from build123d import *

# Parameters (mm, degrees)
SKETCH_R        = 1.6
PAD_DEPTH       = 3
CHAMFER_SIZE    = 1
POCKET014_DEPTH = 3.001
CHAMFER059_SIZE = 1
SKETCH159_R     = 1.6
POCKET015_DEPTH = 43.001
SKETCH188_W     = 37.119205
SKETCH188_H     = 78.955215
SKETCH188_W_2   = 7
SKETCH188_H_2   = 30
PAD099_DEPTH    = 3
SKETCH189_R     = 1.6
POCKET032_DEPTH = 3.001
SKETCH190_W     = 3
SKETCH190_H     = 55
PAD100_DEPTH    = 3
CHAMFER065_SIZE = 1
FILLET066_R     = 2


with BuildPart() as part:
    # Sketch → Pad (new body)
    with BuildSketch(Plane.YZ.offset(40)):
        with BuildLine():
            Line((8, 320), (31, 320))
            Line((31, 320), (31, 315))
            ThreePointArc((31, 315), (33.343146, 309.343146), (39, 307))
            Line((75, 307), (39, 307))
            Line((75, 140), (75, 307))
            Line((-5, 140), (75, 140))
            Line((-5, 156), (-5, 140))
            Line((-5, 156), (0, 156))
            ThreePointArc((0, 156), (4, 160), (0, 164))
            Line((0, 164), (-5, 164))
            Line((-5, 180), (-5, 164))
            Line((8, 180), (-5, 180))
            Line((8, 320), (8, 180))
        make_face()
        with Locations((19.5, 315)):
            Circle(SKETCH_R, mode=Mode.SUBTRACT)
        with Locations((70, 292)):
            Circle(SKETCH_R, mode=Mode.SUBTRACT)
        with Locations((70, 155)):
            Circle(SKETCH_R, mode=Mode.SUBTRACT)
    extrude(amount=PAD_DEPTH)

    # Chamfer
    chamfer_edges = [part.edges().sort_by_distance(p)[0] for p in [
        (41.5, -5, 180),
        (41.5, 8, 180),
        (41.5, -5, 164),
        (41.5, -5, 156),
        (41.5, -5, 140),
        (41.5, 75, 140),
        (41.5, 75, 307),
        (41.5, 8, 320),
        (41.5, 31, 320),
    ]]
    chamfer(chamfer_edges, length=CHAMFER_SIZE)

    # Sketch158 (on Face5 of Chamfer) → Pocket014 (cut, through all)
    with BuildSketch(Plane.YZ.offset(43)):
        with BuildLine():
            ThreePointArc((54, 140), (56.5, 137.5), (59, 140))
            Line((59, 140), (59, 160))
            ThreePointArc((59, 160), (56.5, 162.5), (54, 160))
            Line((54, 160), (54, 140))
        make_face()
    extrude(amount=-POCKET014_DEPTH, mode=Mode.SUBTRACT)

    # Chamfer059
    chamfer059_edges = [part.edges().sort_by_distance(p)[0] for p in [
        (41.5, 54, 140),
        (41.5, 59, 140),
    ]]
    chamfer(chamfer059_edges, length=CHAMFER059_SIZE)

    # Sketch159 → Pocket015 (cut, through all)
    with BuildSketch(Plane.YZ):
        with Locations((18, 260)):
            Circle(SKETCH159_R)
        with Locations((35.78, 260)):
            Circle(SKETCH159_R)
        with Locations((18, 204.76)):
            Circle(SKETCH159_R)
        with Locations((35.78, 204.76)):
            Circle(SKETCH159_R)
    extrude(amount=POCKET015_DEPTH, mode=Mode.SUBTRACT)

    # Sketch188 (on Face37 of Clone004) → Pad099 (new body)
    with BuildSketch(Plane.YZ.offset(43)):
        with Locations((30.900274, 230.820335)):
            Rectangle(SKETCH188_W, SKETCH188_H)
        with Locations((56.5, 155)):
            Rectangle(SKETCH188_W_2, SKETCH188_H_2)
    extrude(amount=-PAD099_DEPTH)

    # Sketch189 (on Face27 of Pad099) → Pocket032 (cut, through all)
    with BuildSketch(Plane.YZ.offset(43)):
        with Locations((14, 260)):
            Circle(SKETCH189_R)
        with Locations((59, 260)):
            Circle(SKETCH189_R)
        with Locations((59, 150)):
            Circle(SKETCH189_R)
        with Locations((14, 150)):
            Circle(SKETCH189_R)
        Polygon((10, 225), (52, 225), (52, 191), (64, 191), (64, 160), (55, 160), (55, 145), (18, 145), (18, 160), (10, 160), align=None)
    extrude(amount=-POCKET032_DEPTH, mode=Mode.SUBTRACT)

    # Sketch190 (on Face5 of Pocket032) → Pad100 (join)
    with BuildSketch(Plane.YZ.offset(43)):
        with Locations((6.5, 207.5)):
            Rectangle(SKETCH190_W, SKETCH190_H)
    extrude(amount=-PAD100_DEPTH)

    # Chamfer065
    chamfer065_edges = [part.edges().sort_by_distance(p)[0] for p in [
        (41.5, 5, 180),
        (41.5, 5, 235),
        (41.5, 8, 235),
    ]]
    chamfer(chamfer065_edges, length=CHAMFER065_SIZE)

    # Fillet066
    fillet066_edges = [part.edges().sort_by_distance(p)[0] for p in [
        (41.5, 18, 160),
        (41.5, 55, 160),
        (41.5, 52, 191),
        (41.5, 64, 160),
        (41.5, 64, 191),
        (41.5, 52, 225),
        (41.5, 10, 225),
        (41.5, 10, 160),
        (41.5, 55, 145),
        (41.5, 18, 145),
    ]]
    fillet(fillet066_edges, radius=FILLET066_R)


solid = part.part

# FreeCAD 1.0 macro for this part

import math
import FreeCAD as App
import Part
import Sketcher

V = App.Vector
Q = App.Units.Quantity


def edges_at(feature, points):
    """Names of the edges that pass closest to the given points."""
    edges = feature.Shape.Edges
    near = lambda p: min(range(len(edges)), key=lambda i: edges[i].distToShape(Part.Vertex(*p))[0])
    return sorted({f"Edge{near(p) + 1}" for p in points})

doc = App.newDocument("Part")
body = doc.addObject("PartDesign::Body", "Body")

# Sketch on YZ plane
sketch1 = body.newObject("Sketcher::SketchObject", "Sketch")
sketch1.AttachmentSupport = (doc.getObject("YZ_Plane"), [""])
sketch1.MapMode = "FlatFace"
sketch1.AttachmentOffset = App.Placement(V(0, 0, 40), App.Rotation())
sketch1.addGeometry(Part.LineSegment(V(31, 320, 0), V(8, 320, 0)), False)
sketch1.addGeometry(Part.LineSegment(V(8, 320, 0), V(8, 180, 0)), False)
sketch1.addGeometry(Part.LineSegment(V(8, 180, 0), V(-5, 180, 0)), False)
sketch1.addGeometry(Part.LineSegment(V(-5, 180, 0), V(-5, 164, 0)), False)
sketch1.addGeometry(Part.LineSegment(V(-5, 164, 0), V(0, 164, 0)), False)
sketch1.addGeometry(Part.ArcOfCircle(Part.Circle(V(0, 160, 0), V(0, 0, 1), 4), math.radians(-90), math.radians(90)), False)
sketch1.addGeometry(Part.LineSegment(V(0, 156, 0), V(-5, 156, 0)), False)
sketch1.addGeometry(Part.LineSegment(V(-5, 156, 0), V(-5, 140, 0)), False)
sketch1.addGeometry(Part.LineSegment(V(-5, 140, 0), V(75, 140, 0)), False)
sketch1.addGeometry(Part.LineSegment(V(75, 140, 0), V(75, 307, 0)), False)
sketch1.addGeometry(Part.LineSegment(V(75, 307, 0), V(39, 307, 0)), False)
sketch1.addGeometry(Part.ArcOfCircle(Part.Circle(V(39.000001, 315.000001, 0), V(0, 0, 1), 8.000001), math.radians(-179.999994), math.radians(-90.000006)), False)
sketch1.addGeometry(Part.LineSegment(V(31, 315, 0), V(31, 320, 0)), False)
sketch1.addGeometry(Part.Circle(V(70, 155, 0), V(0, 0, 1), 1.6), False)
sketch1.addGeometry(Part.Circle(V(70, 292, 0), V(0, 0, 1), 1.6), False)
sketch1.addGeometry(Part.Circle(V(19.5, 315, 0), V(0, 0, 1), 1.6), False)
sketch1.addConstraint(Sketcher.Constraint("Coincident", 0, 2, 1, 1))
sketch1.addConstraint(Sketcher.Constraint("Coincident", 1, 2, 2, 1))
sketch1.addConstraint(Sketcher.Constraint("Coincident", 2, 2, 3, 1))
sketch1.addConstraint(Sketcher.Constraint("Coincident", 3, 2, 4, 1))
sketch1.addConstraint(Sketcher.Constraint("Tangent", 4, 2, 5, 2))
sketch1.addConstraint(Sketcher.Constraint("Tangent", 5, 1, 6, 1))
sketch1.addConstraint(Sketcher.Constraint("Coincident", 6, 2, 7, 1))
sketch1.addConstraint(Sketcher.Constraint("Coincident", 7, 2, 8, 1))
sketch1.addConstraint(Sketcher.Constraint("Coincident", 8, 2, 9, 1))
sketch1.addConstraint(Sketcher.Constraint("Coincident", 9, 2, 10, 1))
sketch1.addConstraint(Sketcher.Constraint("Tangent", 10, 2, 11, 2))
sketch1.addConstraint(Sketcher.Constraint("Tangent", 11, 1, 12, 1))
sketch1.addConstraint(Sketcher.Constraint("Coincident", 12, 2, 0, 1))
sketch1.addConstraint(Sketcher.Constraint("Horizontal", 0))
sketch1.addConstraint(Sketcher.Constraint("Vertical", 1))
sketch1.addConstraint(Sketcher.Constraint("Horizontal", 2))
sketch1.addConstraint(Sketcher.Constraint("Vertical", 3))
sketch1.addConstraint(Sketcher.Constraint("Horizontal", 4))
sketch1.addConstraint(Sketcher.Constraint("Horizontal", 6))
sketch1.addConstraint(Sketcher.Constraint("Vertical", 7))
sketch1.addConstraint(Sketcher.Constraint("Horizontal", 8))
sketch1.addConstraint(Sketcher.Constraint("Vertical", 9))
sketch1.addConstraint(Sketcher.Constraint("Horizontal", 10))
sketch1.addConstraint(Sketcher.Constraint("Vertical", 12))
sketch1.addConstraint(Sketcher.Constraint("Equal", 13, 14))
sketch1.addConstraint(Sketcher.Constraint("Equal", 14, 15))
sketch1.addConstraint(Sketcher.Constraint("PointOnObject", 5, 3, -2))
sketch1.addConstraint(Sketcher.Constraint("Horizontal", 11, 3, 15, 3))
sketch1.addConstraint(Sketcher.Constraint("Vertical", 13, 3, 14, 3))
sketch1.addConstraint(Sketcher.Constraint("Vertical", 3, 2, 6, 2))
sketch1.addConstraint(Sketcher.Constraint("Equal", 3, 7))
sketch1.addConstraint(Sketcher.Constraint("Equal", 6, 12))
sketch1.addConstraint(Sketcher.Constraint("Radius", 5, Q("4 mm")))
sketch1.addConstraint(Sketcher.Constraint("Radius", 11, Q("8.000001 mm")))
sketch1.addConstraint(Sketcher.Constraint("Diameter", 13, Q("3.2 mm")))
sketch1.addConstraint(Sketcher.Constraint("DistanceX", 0, 2, 0, 1, Q("23 mm")))
sketch1.addConstraint(Sketcher.Constraint("DistanceX", 2, 2, 2, 1, Q("13 mm")))
sketch1.addConstraint(Sketcher.Constraint("DistanceX", 4, 1, 4, 2, Q("5 mm")))
sketch1.addConstraint(Sketcher.Constraint("DistanceX", 8, 1, 8, 2, Q("80 mm")))
sketch1.addConstraint(Sketcher.Constraint("DistanceY", 1, 2, 1, 1, Q("140 mm")))
sketch1.addConstraint(Sketcher.Constraint("DistanceY", 3, 2, 3, 1, Q("16 mm")))
sketch1.addConstraint(Sketcher.Constraint("DistanceY", -1, 1, 5, 3, Q("160 mm")))
sketch1.addConstraint(Sketcher.Constraint("DistanceX", -1, 1, 13, 3, Q("70 mm")))
sketch1.addConstraint(Sketcher.Constraint("DistanceY", -1, 1, 13, 3, Q("155 mm")))
sketch1.addConstraint(Sketcher.Constraint("DistanceY", -1, 1, 14, 3, Q("292 mm")))
sketch1.addConstraint(Sketcher.Constraint("DistanceX", -1, 1, 15, 3, Q("19.5 mm")))
pad1 = body.newObject("PartDesign::Pad", "Pad")
pad1.Profile = sketch1
pad1.Length = 3
doc.recompute()

chamfer = body.newObject("PartDesign::Chamfer", "Chamfer")
chamfer.Base = (pad1, edges_at(pad1, [
    (41.5, -5, 180),
    (41.5, 8, 180),
    (41.5, -5, 164),
    (41.5, -5, 156),
    (41.5, -5, 140),
    (41.5, 75, 140),
    (41.5, 75, 307),
    (41.5, 8, 320),
    (41.5, 31, 320),
]))
chamfer.Size = 1

# Sketch on YZ plane
sketch2 = body.newObject("Sketcher::SketchObject", "Sketch001")
sketch2.AttachmentSupport = (doc.getObject("YZ_Plane"), [""])
sketch2.MapMode = "FlatFace"
sketch2.AttachmentOffset = App.Placement(V(0, 0, 43), App.Rotation())
sketch2.addGeometry(Part.ArcOfCircle(Part.Circle(V(56.5, 140, 0), V(0, 0, 1), 2.5), math.radians(180), math.radians(360)), False)
sketch2.addGeometry(Part.LineSegment(V(59, 140, 0), V(59, 160, 0)), False)
sketch2.addGeometry(Part.ArcOfCircle(Part.Circle(V(56.5, 160, 0), V(0, 0, 1), 2.5), math.radians(0), math.radians(180)), False)
sketch2.addGeometry(Part.LineSegment(V(54, 160, 0), V(54, 140, 0)), False)
sketch2.addConstraint(Sketcher.Constraint("Tangent", 0, 2, 1, 1))
sketch2.addConstraint(Sketcher.Constraint("Tangent", 1, 2, 2, 1))
sketch2.addConstraint(Sketcher.Constraint("Tangent", 2, 2, 3, 1))
sketch2.addConstraint(Sketcher.Constraint("Tangent", 3, 2, 0, 1))
sketch2.addConstraint(Sketcher.Constraint("Vertical", 1))
sketch2.addConstraint(Sketcher.Constraint("Vertical", 3))
sketch2.addConstraint(Sketcher.Constraint("Radius", 0, Q("2.5 mm")))
sketch2.addConstraint(Sketcher.Constraint("DistanceY", 1, 1, 1, 2, Q("20 mm")))
sketch2.addConstraint(Sketcher.Constraint("DistanceY", -1, 1, 0, 3, Q("140 mm")))
sketch2.addConstraint(Sketcher.Constraint("DistanceX", -1, 1, 0, 2, Q("59 mm")))
pocket1 = body.newObject("PartDesign::Pocket", "Pocket")
pocket1.Profile = sketch2
pocket1.Type = "ThroughAll"
doc.recompute()

chamfer2 = body.newObject("PartDesign::Chamfer", "Chamfer001")
chamfer2.Base = (pocket1, edges_at(pocket1, [(41.5, 54, 140), (41.5, 59, 140)]))
chamfer2.Size = 1

# Sketch on YZ plane
sketch3 = body.newObject("Sketcher::SketchObject", "Sketch002")
sketch3.AttachmentSupport = (doc.getObject("YZ_Plane"), [""])
sketch3.MapMode = "FlatFace"
sketch3.addGeometry(Part.Circle(V(18, 260, 0), V(0, 0, 1), 1.6), False)
sketch3.addGeometry(Part.Circle(V(35.78, 260, 0), V(0, 0, 1), 1.6), False)
sketch3.addGeometry(Part.Circle(V(18, 204.76, 0), V(0, 0, 1), 1.6), False)
sketch3.addGeometry(Part.Circle(V(35.78, 204.76, 0), V(0, 0, 1), 1.6), False)
sketch3.addConstraint(Sketcher.Constraint("Equal", 0, 1))
sketch3.addConstraint(Sketcher.Constraint("Equal", 1, 2))
sketch3.addConstraint(Sketcher.Constraint("Equal", 2, 3))
sketch3.addConstraint(Sketcher.Constraint("Horizontal", 0, 3, 1, 3))
sketch3.addConstraint(Sketcher.Constraint("Horizontal", 2, 3, 3, 3))
sketch3.addConstraint(Sketcher.Constraint("Vertical", 0, 3, 2, 3))
sketch3.addConstraint(Sketcher.Constraint("Vertical", 1, 3, 3, 3))
sketch3.addConstraint(Sketcher.Constraint("Diameter", 0, Q("3.2 mm")))
sketch3.addConstraint(Sketcher.Constraint("DistanceX", -1, 1, 0, 3, Q("18 mm")))
sketch3.addConstraint(Sketcher.Constraint("DistanceY", -1, 1, 0, 3, Q("260 mm")))
sketch3.addConstraint(Sketcher.Constraint("DistanceX", -1, 1, 1, 3, Q("35.78 mm")))
sketch3.addConstraint(Sketcher.Constraint("DistanceY", -1, 1, 2, 3, Q("204.76 mm")))
pocket2 = body.newObject("PartDesign::Pocket", "Pocket001")
pocket2.Profile = sketch3
pocket2.Type = "ThroughAll"
pocket2.Reversed = True

# Sketch on YZ plane
sketch4 = body.newObject("Sketcher::SketchObject", "Sketch003")
sketch4.AttachmentSupport = (doc.getObject("YZ_Plane"), [""])
sketch4.MapMode = "FlatFace"
sketch4.AttachmentOffset = App.Placement(V(0, 0, 43), App.Rotation())
sketch4.addGeometry(Part.LineSegment(V(12.340671, 270.297942, 0), V(12.340671, 191.342727, 0)), False)
sketch4.addGeometry(Part.LineSegment(V(12.340671, 191.342727, 0), V(49.459877, 191.342727, 0)), False)
sketch4.addGeometry(Part.LineSegment(V(49.459877, 191.342727, 0), V(49.459877, 270.297942, 0)), False)
sketch4.addGeometry(Part.LineSegment(V(49.459877, 270.297942, 0), V(12.340671, 270.297942, 0)), False)
sketch4.addGeometry(Part.LineSegment(V(53, 170, 0), V(53, 140, 0)), False)
sketch4.addGeometry(Part.LineSegment(V(53, 140, 0), V(60, 140, 0)), False)
sketch4.addGeometry(Part.LineSegment(V(60, 140, 0), V(60, 170, 0)), False)
sketch4.addGeometry(Part.LineSegment(V(60, 170, 0), V(53, 170, 0)), False)
sketch4.addConstraint(Sketcher.Constraint("Coincident", 0, 2, 1, 1))
sketch4.addConstraint(Sketcher.Constraint("Coincident", 1, 2, 2, 1))
sketch4.addConstraint(Sketcher.Constraint("Coincident", 2, 2, 3, 1))
sketch4.addConstraint(Sketcher.Constraint("Coincident", 3, 2, 0, 1))
sketch4.addConstraint(Sketcher.Constraint("Coincident", 4, 2, 5, 1))
sketch4.addConstraint(Sketcher.Constraint("Coincident", 5, 2, 6, 1))
sketch4.addConstraint(Sketcher.Constraint("Coincident", 6, 2, 7, 1))
sketch4.addConstraint(Sketcher.Constraint("Coincident", 7, 2, 4, 1))
sketch4.addConstraint(Sketcher.Constraint("Vertical", 0))
sketch4.addConstraint(Sketcher.Constraint("Horizontal", 1))
sketch4.addConstraint(Sketcher.Constraint("Vertical", 2))
sketch4.addConstraint(Sketcher.Constraint("Horizontal", 3))
sketch4.addConstraint(Sketcher.Constraint("Vertical", 4))
sketch4.addConstraint(Sketcher.Constraint("Horizontal", 5))
sketch4.addConstraint(Sketcher.Constraint("Vertical", 6))
sketch4.addConstraint(Sketcher.Constraint("Horizontal", 7))
sketch4.addConstraint(Sketcher.Constraint("DistanceX", 5, 1, 5, 2, Q("7 mm")))
sketch4.addConstraint(Sketcher.Constraint("DistanceY", 4, 2, 4, 1, Q("30 mm")))
sketch4.addConstraint(Sketcher.Constraint("DistanceX", -1, 1, 4, 2, Q("53 mm")))
sketch4.addConstraint(Sketcher.Constraint("DistanceY", -1, 1, 4, 2, Q("140 mm")))
sketch4.addConstraint(Sketcher.Constraint("DistanceX", 1, 1, 1, 2, Q("37.119205 mm")))
sketch4.addConstraint(Sketcher.Constraint("DistanceY", 0, 2, 0, 1, Q("78.955215 mm")))
sketch4.addConstraint(Sketcher.Constraint("DistanceX", -1, 1, 0, 2, Q("12.340671 mm")))
sketch4.addConstraint(Sketcher.Constraint("DistanceY", -1, 1, 0, 2, Q("191.342727 mm")))
pad2 = body.newObject("PartDesign::Pad", "Pad001")
pad2.Profile = sketch4
pad2.Length = 3
pad2.Reversed = True

# Sketch on YZ plane
sketch5 = body.newObject("Sketcher::SketchObject", "Sketch004")
sketch5.AttachmentSupport = (doc.getObject("YZ_Plane"), [""])
sketch5.MapMode = "FlatFace"
sketch5.AttachmentOffset = App.Placement(V(0, 0, 43), App.Rotation())
sketch5.addGeometry(Part.Circle(V(14, 260, 0), V(0, 0, 1), 1.6), False)
sketch5.addGeometry(Part.Circle(V(59, 260, 0), V(0, 0, 1), 1.6), False)
sketch5.addGeometry(Part.Circle(V(59, 150, 0), V(0, 0, 1), 1.6), False)
sketch5.addGeometry(Part.Circle(V(14, 150, 0), V(0, 0, 1), 1.6), False)
sketch5.addGeometry(Part.LineSegment(V(52, 225, 0), V(10, 225, 0)), False)
sketch5.addGeometry(Part.LineSegment(V(10, 225, 0), V(10, 160, 0)), False)
sketch5.addGeometry(Part.LineSegment(V(10, 160, 0), V(18, 160, 0)), False)
sketch5.addGeometry(Part.LineSegment(V(18, 160, 0), V(18, 145, 0)), False)
sketch5.addGeometry(Part.LineSegment(V(18, 145, 0), V(55, 145, 0)), False)
sketch5.addGeometry(Part.LineSegment(V(55, 145, 0), V(55, 160, 0)), False)
sketch5.addGeometry(Part.LineSegment(V(55, 160, 0), V(64, 160, 0)), False)
sketch5.addGeometry(Part.LineSegment(V(64, 160, 0), V(64, 191, 0)), False)
sketch5.addGeometry(Part.LineSegment(V(64, 191, 0), V(52, 191, 0)), False)
sketch5.addGeometry(Part.LineSegment(V(52, 191, 0), V(52, 225, 0)), False)
sketch5.addConstraint(Sketcher.Constraint("Coincident", 4, 2, 5, 1))
sketch5.addConstraint(Sketcher.Constraint("Coincident", 5, 2, 6, 1))
sketch5.addConstraint(Sketcher.Constraint("Coincident", 6, 2, 7, 1))
sketch5.addConstraint(Sketcher.Constraint("Coincident", 7, 2, 8, 1))
sketch5.addConstraint(Sketcher.Constraint("Coincident", 8, 2, 9, 1))
sketch5.addConstraint(Sketcher.Constraint("Coincident", 9, 2, 10, 1))
sketch5.addConstraint(Sketcher.Constraint("Coincident", 10, 2, 11, 1))
sketch5.addConstraint(Sketcher.Constraint("Coincident", 11, 2, 12, 1))
sketch5.addConstraint(Sketcher.Constraint("Coincident", 12, 2, 13, 1))
sketch5.addConstraint(Sketcher.Constraint("Coincident", 13, 2, 4, 1))
sketch5.addConstraint(Sketcher.Constraint("Horizontal", 4))
sketch5.addConstraint(Sketcher.Constraint("Vertical", 5))
sketch5.addConstraint(Sketcher.Constraint("Horizontal", 6))
sketch5.addConstraint(Sketcher.Constraint("Vertical", 7))
sketch5.addConstraint(Sketcher.Constraint("Horizontal", 8))
sketch5.addConstraint(Sketcher.Constraint("Vertical", 9))
sketch5.addConstraint(Sketcher.Constraint("Horizontal", 10))
sketch5.addConstraint(Sketcher.Constraint("Vertical", 11))
sketch5.addConstraint(Sketcher.Constraint("Horizontal", 12))
sketch5.addConstraint(Sketcher.Constraint("Vertical", 13))
sketch5.addConstraint(Sketcher.Constraint("Equal", 0, 1))
sketch5.addConstraint(Sketcher.Constraint("Equal", 1, 2))
sketch5.addConstraint(Sketcher.Constraint("Equal", 2, 3))
sketch5.addConstraint(Sketcher.Constraint("Horizontal", 0, 3, 1, 3))
sketch5.addConstraint(Sketcher.Constraint("Horizontal", 2, 3, 3, 3))
sketch5.addConstraint(Sketcher.Constraint("Horizontal", 6, 2, 9, 2))
sketch5.addConstraint(Sketcher.Constraint("Vertical", 1, 3, 2, 3))
sketch5.addConstraint(Sketcher.Constraint("Vertical", 0, 3, 3, 3))
sketch5.addConstraint(Sketcher.Constraint("Diameter", 0, Q("3.2 mm")))
sketch5.addConstraint(Sketcher.Constraint("DistanceX", 4, 2, 4, 1, Q("42 mm")))
sketch5.addConstraint(Sketcher.Constraint("DistanceX", 6, 1, 6, 2, Q("8 mm")))
sketch5.addConstraint(Sketcher.Constraint("DistanceX", 8, 1, 8, 2, Q("37 mm")))
sketch5.addConstraint(Sketcher.Constraint("DistanceX", 10, 1, 10, 2, Q("9 mm")))
sketch5.addConstraint(Sketcher.Constraint("DistanceY", 5, 2, 5, 1, Q("65 mm")))
sketch5.addConstraint(Sketcher.Constraint("DistanceY", 7, 2, 7, 1, Q("15 mm")))
sketch5.addConstraint(Sketcher.Constraint("DistanceY", 11, 1, 11, 2, Q("31 mm")))
sketch5.addConstraint(Sketcher.Constraint("DistanceX", -1, 1, 0, 3, Q("14 mm")))
sketch5.addConstraint(Sketcher.Constraint("DistanceY", -1, 1, 0, 3, Q("260 mm")))
sketch5.addConstraint(Sketcher.Constraint("DistanceX", -1, 1, 1, 3, Q("59 mm")))
sketch5.addConstraint(Sketcher.Constraint("DistanceY", -1, 1, 2, 3, Q("150 mm")))
sketch5.addConstraint(Sketcher.Constraint("DistanceX", -1, 1, 4, 2, Q("10 mm")))
sketch5.addConstraint(Sketcher.Constraint("DistanceY", -1, 1, 4, 2, Q("225 mm")))
pocket3 = body.newObject("PartDesign::Pocket", "Pocket002")
pocket3.Profile = sketch5
pocket3.Type = "ThroughAll"

# Sketch on YZ plane
sketch6 = body.newObject("Sketcher::SketchObject", "Sketch005")
sketch6.AttachmentSupport = (doc.getObject("YZ_Plane"), [""])
sketch6.MapMode = "FlatFace"
sketch6.AttachmentOffset = App.Placement(V(0, 0, 43), App.Rotation())
sketch6.addGeometry(Part.LineSegment(V(5, 235, 0), V(5, 180, 0)), False)
sketch6.addGeometry(Part.LineSegment(V(5, 180, 0), V(8, 180, 0)), False)
sketch6.addGeometry(Part.LineSegment(V(8, 180, 0), V(8, 235, 0)), False)
sketch6.addGeometry(Part.LineSegment(V(8, 235, 0), V(5, 235, 0)), False)
sketch6.addConstraint(Sketcher.Constraint("Coincident", 0, 2, 1, 1))
sketch6.addConstraint(Sketcher.Constraint("Coincident", 1, 2, 2, 1))
sketch6.addConstraint(Sketcher.Constraint("Coincident", 2, 2, 3, 1))
sketch6.addConstraint(Sketcher.Constraint("Coincident", 3, 2, 0, 1))
sketch6.addConstraint(Sketcher.Constraint("Vertical", 0))
sketch6.addConstraint(Sketcher.Constraint("Horizontal", 1))
sketch6.addConstraint(Sketcher.Constraint("Vertical", 2))
sketch6.addConstraint(Sketcher.Constraint("Horizontal", 3))
sketch6.addConstraint(Sketcher.Constraint("DistanceX", 1, 1, 1, 2, Q("3 mm")))
sketch6.addConstraint(Sketcher.Constraint("DistanceY", 0, 2, 0, 1, Q("55 mm")))
sketch6.addConstraint(Sketcher.Constraint("DistanceX", -1, 1, 0, 2, Q("5 mm")))
sketch6.addConstraint(Sketcher.Constraint("DistanceY", -1, 1, 0, 2, Q("180 mm")))
pad3 = body.newObject("PartDesign::Pad", "Pad002")
pad3.Profile = sketch6
pad3.Length = 3
pad3.Reversed = True
doc.recompute()

chamfer3 = body.newObject("PartDesign::Chamfer", "Chamfer002")
chamfer3.Base = (pad3, edges_at(pad3, [(41.5, 5, 180), (41.5, 5, 235), (41.5, 8, 235)]))
chamfer3.Size = 1
doc.recompute()

fillet = body.newObject("PartDesign::Fillet", "Fillet")
fillet.Base = (chamfer3, edges_at(chamfer3, [
    (41.5, 18, 160),
    (41.5, 55, 160),
    (41.5, 52, 191),
    (41.5, 64, 160),
    (41.5, 64, 191),
    (41.5, 52, 225),
    (41.5, 10, 225),
    (41.5, 10, 160),
    (41.5, 55, 145),
    (41.5, 18, 145),
]))
fillet.Radius = 2

doc.recompute()
